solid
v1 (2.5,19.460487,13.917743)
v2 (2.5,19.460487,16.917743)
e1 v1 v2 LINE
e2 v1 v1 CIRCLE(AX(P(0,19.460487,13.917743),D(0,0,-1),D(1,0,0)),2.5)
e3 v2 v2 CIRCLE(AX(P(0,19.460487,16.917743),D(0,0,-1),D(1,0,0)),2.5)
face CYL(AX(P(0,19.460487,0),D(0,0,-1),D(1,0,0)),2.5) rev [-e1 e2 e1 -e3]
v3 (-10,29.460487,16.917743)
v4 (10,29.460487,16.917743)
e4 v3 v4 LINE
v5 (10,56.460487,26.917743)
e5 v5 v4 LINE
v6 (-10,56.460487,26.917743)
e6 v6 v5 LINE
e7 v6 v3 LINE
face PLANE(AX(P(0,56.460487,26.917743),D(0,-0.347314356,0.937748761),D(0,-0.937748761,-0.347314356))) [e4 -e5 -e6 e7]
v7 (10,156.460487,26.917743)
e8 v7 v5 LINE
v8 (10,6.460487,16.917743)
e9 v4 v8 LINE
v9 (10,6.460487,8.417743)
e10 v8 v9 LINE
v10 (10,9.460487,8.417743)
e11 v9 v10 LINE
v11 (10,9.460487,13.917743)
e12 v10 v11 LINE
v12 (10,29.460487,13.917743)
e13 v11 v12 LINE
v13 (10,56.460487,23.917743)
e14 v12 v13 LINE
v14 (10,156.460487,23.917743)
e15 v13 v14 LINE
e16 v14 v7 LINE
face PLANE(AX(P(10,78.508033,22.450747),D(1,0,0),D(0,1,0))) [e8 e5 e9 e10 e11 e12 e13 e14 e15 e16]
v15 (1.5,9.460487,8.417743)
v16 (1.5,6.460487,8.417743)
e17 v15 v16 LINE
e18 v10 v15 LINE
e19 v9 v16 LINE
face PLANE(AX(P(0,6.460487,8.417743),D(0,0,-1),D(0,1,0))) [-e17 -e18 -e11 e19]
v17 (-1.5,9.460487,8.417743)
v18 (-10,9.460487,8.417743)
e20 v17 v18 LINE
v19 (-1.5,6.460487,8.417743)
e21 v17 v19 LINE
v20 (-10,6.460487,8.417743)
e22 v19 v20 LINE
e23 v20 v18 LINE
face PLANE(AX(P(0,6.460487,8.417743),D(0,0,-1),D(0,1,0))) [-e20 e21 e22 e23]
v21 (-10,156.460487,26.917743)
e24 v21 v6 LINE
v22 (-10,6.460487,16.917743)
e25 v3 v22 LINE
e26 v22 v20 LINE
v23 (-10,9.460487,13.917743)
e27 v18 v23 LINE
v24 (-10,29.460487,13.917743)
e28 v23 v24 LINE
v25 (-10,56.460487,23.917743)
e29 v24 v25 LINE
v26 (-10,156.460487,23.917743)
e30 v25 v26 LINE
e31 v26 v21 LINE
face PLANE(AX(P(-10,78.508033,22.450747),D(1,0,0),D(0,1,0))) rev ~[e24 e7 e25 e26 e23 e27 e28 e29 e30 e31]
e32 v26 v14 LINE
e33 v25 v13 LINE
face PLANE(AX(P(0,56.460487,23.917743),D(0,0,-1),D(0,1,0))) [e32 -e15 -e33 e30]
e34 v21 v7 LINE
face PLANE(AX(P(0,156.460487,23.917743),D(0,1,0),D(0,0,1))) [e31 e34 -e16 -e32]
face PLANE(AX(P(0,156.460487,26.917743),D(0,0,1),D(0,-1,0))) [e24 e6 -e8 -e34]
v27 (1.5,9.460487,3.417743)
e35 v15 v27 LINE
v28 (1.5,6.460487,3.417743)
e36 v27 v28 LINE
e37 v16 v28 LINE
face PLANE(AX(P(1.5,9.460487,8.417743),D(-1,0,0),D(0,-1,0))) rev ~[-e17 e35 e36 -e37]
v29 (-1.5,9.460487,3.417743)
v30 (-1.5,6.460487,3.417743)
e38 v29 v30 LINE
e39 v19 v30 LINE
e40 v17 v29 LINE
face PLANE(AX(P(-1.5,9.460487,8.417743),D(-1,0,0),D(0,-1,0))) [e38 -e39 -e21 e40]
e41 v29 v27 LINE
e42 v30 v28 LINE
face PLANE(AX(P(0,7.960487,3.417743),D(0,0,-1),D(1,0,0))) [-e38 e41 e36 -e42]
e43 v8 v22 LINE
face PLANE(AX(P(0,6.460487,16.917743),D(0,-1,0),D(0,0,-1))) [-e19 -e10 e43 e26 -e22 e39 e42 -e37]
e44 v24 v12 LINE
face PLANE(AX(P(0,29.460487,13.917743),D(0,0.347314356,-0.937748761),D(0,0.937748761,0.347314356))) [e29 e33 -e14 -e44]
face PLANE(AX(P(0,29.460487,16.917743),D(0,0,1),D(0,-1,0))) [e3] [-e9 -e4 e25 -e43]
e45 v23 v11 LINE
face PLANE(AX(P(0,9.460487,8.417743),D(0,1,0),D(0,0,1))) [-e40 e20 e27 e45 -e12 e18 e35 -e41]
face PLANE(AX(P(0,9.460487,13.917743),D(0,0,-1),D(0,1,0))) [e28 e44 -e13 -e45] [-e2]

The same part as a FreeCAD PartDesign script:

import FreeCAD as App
import Part
import Sketcher

V = App.Vector
Q = App.Units.Quantity


def add_polygon(sketch, points):
    """Adds a closed chain of lines whose ends are joined by coincident constraints."""
    first, n = sketch.GeometryCount, len(points)
    for a, b in zip(points, points[1:] + points[:1]):
        sketch.addGeometry(Part.LineSegment(App.Vector(*a, 0), App.Vector(*b, 0)), False)
    for i in range(n):
        sketch.addConstraint(Sketcher.Constraint("Coincident", first + i, 2, first + (i + 1) % n, 1))

doc = App.newDocument("Part")
params = doc.addObject("Spreadsheet::Sheet", "Params")
for row, (alias, value) in enumerate([
    ("sketch1_width", "20 mm"),
    ("sketch1_width2", "100 mm"),
    ("sketch1_width3", "23 mm"),
    ("sketch1_height", "5.5 mm"),
    ("pad1_length", "20 mm"),
    ("sketch2_diameter", "5 mm"),
    ("sketch3_width", "3 mm"),
    ("pad2_length", "5 mm"),
], start=1):
    params.set(f"A{row}", alias)
    params.set(f"B{row}", "=" + value)
    params.setAlias(f"B{row}", alias)

body = doc.addObject("PartDesign::Body", "Body")

sketch1 = body.newObject("Sketcher::SketchObject", "Sketch")
sketch1.AttachmentSupport = (doc.getObject("YZ_Plane"), [""])
sketch1.MapMode = "FlatFace"
add_polygon(sketch1, [(9.460487, 8.417743), (9.460487, 13.917743), (29.460487, 13.917743), (56.460487, 23.917743), (156.460487, 23.917743), (156.460487, 26.917743), (56.460487, 26.917743), (29.460487, 16.917743), (6.460487, 16.917743), (6.460487, 8.417743)])
sketch1.addConstraint([
    Sketcher.Constraint("Vertical", 0),
    Sketcher.Constraint("Horizontal", 1),
    Sketcher.Constraint("Horizontal", 3),
    Sketcher.Constraint("Vertical", 4),
    Sketcher.Constraint("Horizontal", 5),
    Sketcher.Constraint("Horizontal", 7),
    Sketcher.Constraint("Vertical", 8),
    Sketcher.Constraint("Horizontal", 9),
    Sketcher.Constraint("Parallel", 2, 6),
    Sketcher.Constraint("Vertical", 2, 2, 5, 2),
    Sketcher.Constraint("Vertical", 1, 2, 6, 2),
    Sketcher.Constraint("Equal", 9, 4),
    Sketcher.Constraint("DistanceX", 1, 1, 1, 2, Q("20 mm")),
    Sketcher.Constraint("DistanceX", 3, 1, 3, 2, Q("100 mm")),
    Sketcher.Constraint("DistanceX", 7, 2, 7, 1, Q("23 mm")),
    Sketcher.Constraint("DistanceY", 0, 1, 0, 2, Q("5.5 mm")),
    Sketcher.Constraint("DistanceX", 1, 2, 2, 2, Q("27 mm")),
    Sketcher.Constraint("DistanceY", 1, 2, 2, 2, Q("10 mm")),
    Sketcher.Constraint("DistanceX", -1, 1, 0, 2, Q("9.460487 mm")),
    Sketcher.Constraint("DistanceY", -1, 1, 0, 2, Q("13.917743 mm")),
])
sketch1.setExpression("Constraints[22]", "Params.sketch1_width")
sketch1.setExpression("Constraints[23]", "Params.sketch1_width2")
sketch1.setExpression("Constraints[24]", "Params.sketch1_width3")
sketch1.setExpression("Constraints[25]", "Params.sketch1_height")
pad1 = body.newObject("PartDesign::Pad", "Pad")
pad1.Profile = sketch1
pad1.setExpression("Length", "Params.pad1_length")
pad1.Midplane = True

sketch2 = body.newObject("Sketcher::SketchObject", "Sketch001")
sketch2.AttachmentSupport = (doc.getObject("XY_Plane"), [""])
sketch2.MapMode = "FlatFace"
sketch2.addGeometry(Part.Circle(V(0, 19.460487, 0), V(0, 0, 1), 2.5), False)
sketch2.addConstraint([
    Sketcher.Constraint("PointOnObject", 0, 3, -2),
    Sketcher.Constraint("Diameter", 0, Q("5 mm")),
    Sketcher.Constraint("DistanceY", -1, 1, 0, 3, Q("19.460487 mm")),
])
sketch2.setExpression("Constraints[1]", "Params.sketch2_diameter")
pocket1 = body.newObject("PartDesign::Pocket", "Pocket")
pocket1.Profile = sketch2
pocket1.Type = "ThroughAll"
pocket1.Reversed = True

sketch3 = body.newObject("Sketcher::SketchObject", "Sketch002")
sketch3.AttachmentSupport = (doc.getObject("XY_Plane"), [""])
sketch3.MapMode = "FlatFace"
sketch3.AttachmentOffset = App.Placement(V(0, 0, 8.417743), App.Rotation())
add_polygon(sketch3, [(-1.5, 6.460487), (-1.5, 9.460487), (1.5, 9.460487), (1.5, 6.460487)])
sketch3.addConstraint([
    Sketcher.Constraint("Vertical", 0),
    Sketcher.Constraint("Horizontal", 1),
    Sketcher.Constraint("Vertical", 2),
    Sketcher.Constraint("Horizontal", 3),
    Sketcher.Constraint("Equal", 3, 0),
    Sketcher.Constraint("DistanceX", 1, 1, 1, 2, Q("3 mm")),
    Sketcher.Constraint("DistanceX", 0, 2, -1, 1, Q("1.5 mm")),
    Sketcher.Constraint("DistanceY", -1, 1, 0, 2, Q("9.460487 mm")),
])
sketch3.setExpression("Constraints[9]", "Params.sketch3_width")
pad2 = body.newObject("PartDesign::Pad", "Pad001")
pad2.Profile = sketch3
pad2.setExpression("Length", "Params.pad2_length")
pad2.Reversed = True

doc.recompute()
